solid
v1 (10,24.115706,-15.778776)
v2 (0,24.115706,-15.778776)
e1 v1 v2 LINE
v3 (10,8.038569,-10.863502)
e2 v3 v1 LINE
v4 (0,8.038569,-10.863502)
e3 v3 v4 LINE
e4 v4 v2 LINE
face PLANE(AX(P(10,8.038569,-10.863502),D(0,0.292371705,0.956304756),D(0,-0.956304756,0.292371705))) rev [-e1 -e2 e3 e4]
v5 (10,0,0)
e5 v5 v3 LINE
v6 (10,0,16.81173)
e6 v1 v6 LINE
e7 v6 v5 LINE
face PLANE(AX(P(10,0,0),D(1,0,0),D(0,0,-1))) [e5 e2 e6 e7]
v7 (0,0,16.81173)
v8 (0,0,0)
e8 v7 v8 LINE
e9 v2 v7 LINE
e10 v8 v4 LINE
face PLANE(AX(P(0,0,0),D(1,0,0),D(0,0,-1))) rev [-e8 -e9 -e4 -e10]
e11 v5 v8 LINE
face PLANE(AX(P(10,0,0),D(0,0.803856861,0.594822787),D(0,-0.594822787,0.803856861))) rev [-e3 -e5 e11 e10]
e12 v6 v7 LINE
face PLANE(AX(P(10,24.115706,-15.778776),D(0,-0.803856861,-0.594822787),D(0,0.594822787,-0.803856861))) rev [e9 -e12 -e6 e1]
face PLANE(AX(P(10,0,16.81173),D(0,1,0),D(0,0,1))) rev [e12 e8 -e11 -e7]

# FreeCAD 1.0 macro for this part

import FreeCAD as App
import Part
import Sketcher
Q = App.Units.Quantity


def add_polygon(sketch, points):
    """Adds a closed chain of lines whose ends are joined by coincident constraints."""
    first, n = sketch.GeometryCount, len(points)
    for a, b in zip(points, points[1:] + points[:1]):
        sketch.addGeometry(Part.LineSegment(App.Vector(*a, 0), App.Vector(*b, 0)), False)
    for i in range(n):
        sketch.addConstraint(Sketcher.Constraint("Coincident", first + i, 2, first + (i + 1) % n, 1))

doc = App.newDocument("Part")
body = doc.addObject("PartDesign::Body", "Body")

sketch1 = doc.addObject("Sketcher::SketchObject", "Sketch")
body.addObject(sketch1)
sketch1.AttachmentSupport = (doc.YZ_Plane, [""])
sketch1.MapMode = "FlatFace"
add_polygon(sketch1, [(0, 17), (0, 0), (8, -11), (24, -16)])
sketch1.addConstraint(Sketcher.Constraint("Vertical", 0))
sketch1.addConstraint(Sketcher.Constraint("Coincident", 0, 2, -1, 1))
sketch1.addConstraint(Sketcher.Constraint("Parallel", 1, 3))
sketch1.addConstraint(Sketcher.Constraint("Angle", 2, Q("-17 deg")))
sketch1.addConstraint(Sketcher.Constraint("Angle", 1, Q("-53.5 deg")))
sketch1.addConstraint(Sketcher.Constraint("DistanceY", 0, 2, 0, 1, 16.81173))
sketch1.addConstraint(Sketcher.Constraint("DistanceY", 1, 2, -1, 1, 10.863502))
pad1 = doc.addObject("PartDesign::Pad", "Pad")
body.addObject(pad1)
pad1.Profile = sketch1
pad1.Length = 10

doc.recompute()
